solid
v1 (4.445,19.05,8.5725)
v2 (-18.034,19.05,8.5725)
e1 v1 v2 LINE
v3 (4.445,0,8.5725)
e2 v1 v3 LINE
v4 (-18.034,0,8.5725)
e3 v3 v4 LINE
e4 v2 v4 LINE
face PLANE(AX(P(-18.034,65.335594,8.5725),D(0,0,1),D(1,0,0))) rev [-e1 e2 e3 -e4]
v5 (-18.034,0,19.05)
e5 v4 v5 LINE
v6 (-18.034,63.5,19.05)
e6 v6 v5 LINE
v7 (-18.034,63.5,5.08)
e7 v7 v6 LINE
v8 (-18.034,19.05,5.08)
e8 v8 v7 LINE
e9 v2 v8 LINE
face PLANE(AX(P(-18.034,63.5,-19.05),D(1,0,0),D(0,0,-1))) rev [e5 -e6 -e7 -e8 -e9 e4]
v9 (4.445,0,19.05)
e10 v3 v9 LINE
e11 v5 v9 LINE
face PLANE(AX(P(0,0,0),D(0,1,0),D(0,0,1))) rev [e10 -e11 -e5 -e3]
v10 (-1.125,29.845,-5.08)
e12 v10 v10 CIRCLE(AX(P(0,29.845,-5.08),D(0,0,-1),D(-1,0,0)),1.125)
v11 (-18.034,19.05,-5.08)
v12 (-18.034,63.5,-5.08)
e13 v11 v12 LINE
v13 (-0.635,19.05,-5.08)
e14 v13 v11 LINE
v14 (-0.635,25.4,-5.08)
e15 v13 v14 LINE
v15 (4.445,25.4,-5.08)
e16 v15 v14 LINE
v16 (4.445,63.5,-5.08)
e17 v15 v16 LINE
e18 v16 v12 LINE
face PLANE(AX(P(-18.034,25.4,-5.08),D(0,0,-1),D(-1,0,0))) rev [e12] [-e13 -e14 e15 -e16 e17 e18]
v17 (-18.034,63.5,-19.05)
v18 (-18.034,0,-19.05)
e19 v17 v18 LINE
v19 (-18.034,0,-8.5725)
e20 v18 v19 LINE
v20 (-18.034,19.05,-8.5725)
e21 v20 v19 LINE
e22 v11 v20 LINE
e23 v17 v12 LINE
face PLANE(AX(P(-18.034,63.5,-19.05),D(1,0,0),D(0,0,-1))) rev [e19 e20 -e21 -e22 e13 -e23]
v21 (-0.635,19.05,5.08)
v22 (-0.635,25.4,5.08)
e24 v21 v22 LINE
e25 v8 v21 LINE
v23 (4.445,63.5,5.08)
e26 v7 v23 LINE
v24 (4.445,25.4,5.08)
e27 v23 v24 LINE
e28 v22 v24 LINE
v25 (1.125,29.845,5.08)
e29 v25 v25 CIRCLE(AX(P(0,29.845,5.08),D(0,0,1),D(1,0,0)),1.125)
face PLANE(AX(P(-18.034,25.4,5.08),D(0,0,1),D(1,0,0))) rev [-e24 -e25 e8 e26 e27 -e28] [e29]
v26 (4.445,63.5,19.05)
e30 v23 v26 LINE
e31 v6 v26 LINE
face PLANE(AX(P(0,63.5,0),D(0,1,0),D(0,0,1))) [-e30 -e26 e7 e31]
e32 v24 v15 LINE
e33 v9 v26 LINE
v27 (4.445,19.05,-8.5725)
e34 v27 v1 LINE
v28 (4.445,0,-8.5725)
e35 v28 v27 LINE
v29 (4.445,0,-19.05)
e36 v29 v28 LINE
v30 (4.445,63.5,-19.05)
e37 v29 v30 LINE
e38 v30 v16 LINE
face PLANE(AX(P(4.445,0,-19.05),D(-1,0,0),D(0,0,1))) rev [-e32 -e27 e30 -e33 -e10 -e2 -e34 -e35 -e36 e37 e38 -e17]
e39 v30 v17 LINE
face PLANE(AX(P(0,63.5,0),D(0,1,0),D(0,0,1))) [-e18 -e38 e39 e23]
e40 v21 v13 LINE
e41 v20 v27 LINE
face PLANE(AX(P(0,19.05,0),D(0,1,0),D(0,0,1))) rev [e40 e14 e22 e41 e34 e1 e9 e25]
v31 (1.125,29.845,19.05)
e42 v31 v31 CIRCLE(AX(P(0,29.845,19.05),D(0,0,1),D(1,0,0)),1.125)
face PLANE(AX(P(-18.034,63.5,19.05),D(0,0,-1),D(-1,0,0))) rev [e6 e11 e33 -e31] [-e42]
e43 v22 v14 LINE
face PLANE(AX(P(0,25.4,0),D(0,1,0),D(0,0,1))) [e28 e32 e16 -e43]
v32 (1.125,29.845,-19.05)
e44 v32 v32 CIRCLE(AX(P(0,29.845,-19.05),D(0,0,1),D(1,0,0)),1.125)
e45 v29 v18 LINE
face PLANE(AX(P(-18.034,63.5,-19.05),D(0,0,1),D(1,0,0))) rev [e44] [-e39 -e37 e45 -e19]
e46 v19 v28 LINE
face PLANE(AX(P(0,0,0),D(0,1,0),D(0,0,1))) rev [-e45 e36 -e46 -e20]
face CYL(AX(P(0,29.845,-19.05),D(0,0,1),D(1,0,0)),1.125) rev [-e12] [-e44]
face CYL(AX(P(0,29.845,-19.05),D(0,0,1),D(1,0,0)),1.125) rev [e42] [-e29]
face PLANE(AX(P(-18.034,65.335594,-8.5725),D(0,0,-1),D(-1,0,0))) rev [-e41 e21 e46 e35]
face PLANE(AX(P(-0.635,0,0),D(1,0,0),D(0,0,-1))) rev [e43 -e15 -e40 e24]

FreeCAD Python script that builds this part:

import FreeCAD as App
import Part
import Sketcher
Q = App.Units.Quantity

doc = App.newDocument("Part")
body = doc.addObject("PartDesign::Body", "Body")

# Sketch on XZ plane
sketch1 = body.newObject("Sketcher::SketchObject", "Sketch")
sketch1.AttachmentSupport = (doc.getObject("XZ_Plane"), [""])
sketch1.MapMode = "FlatFace"
sketch1.addGeometry([
    Part.LineSegment(App.Vector(-18, -19, 0), App.Vector(-18, 19, 0)),
    Part.LineSegment(App.Vector(-18, 19, 0), App.Vector(18, 19, 0)),
    Part.LineSegment(App.Vector(18, 19, 0), App.Vector(18, -19, 0)),
    Part.LineSegment(App.Vector(18, -19, 0), App.Vector(-18, -19, 0)),
], False)
sketch1.addConstraint([
    Sketcher.Constraint("Coincident", 0, 2, 1, 1),
    Sketcher.Constraint("Coincident", 1, 2, 2, 1),
    Sketcher.Constraint("Coincident", 2, 2, 3, 1),
    Sketcher.Constraint("Coincident", 3, 2, 0, 1),
    Sketcher.Constraint("Vertical", 0),
    Sketcher.Constraint("Horizontal", 1),
    Sketcher.Constraint("Vertical", 2),
    Sketcher.Constraint("Horizontal", 3),
    Sketcher.Constraint("Symmetric", 0, 2, 2, 2, -1, 1),
    Sketcher.Constraint("DistanceY", 0, 1, 0, 2, Q("1.5 in")),
    Sketcher.Constraint("DistanceX", 1, 1, 1, 2, Q("1.42 in")),
])
pad1 = body.newObject("PartDesign::Pad", "Pad")
pad1.Profile = sketch1
pad1.Length = Q("2.5 in")
pad1.Reversed = True

# Sketch on XZ plane
sketch2 = body.newObject("Sketcher::SketchObject", "Sketch001")
sketch2.AttachmentSupport = (doc.getObject("XZ_Plane"), [""])
sketch2.MapMode = "FlatFace"
sketch2.AttachmentOffset = App.Placement(App.Vector(0, 0, -2.5 * 25.4), App.Rotation())
sketch2.addGeometry([
    Part.LineSegment(App.Vector(-18, -5, 0), App.Vector(-18, 5, 0)),
    Part.LineSegment(App.Vector(-18, 5, 0), App.Vector(18, 5, 0)),
    Part.LineSegment(App.Vector(18, 5, 0), App.Vector(18, -5, 0)),
    Part.LineSegment(App.Vector(18, -5, 0), App.Vector(-18, -5, 0)),
], False)
sketch2.addConstraint([
    Sketcher.Constraint("Coincident", 0, 2, 1, 1),
    Sketcher.Constraint("Coincident", 1, 2, 2, 1),
    Sketcher.Constraint("Coincident", 2, 2, 3, 1),
    Sketcher.Constraint("Coincident", 3, 2, 0, 1),
    Sketcher.Constraint("Vertical", 0),
    Sketcher.Constraint("Horizontal", 1),
    Sketcher.Constraint("Vertical", 2),
    Sketcher.Constraint("Horizontal", 3),
    Sketcher.Constraint("Symmetric", 0, 2, 2, 2, -1, 1),
    Sketcher.Constraint("DistanceY", 0, 1, 0, 2, Q("0.4 in")),
    Sketcher.Constraint("DistanceX", 1, 1, 1, 2, Q("1.42 in")),
])
pocket1 = body.newObject("PartDesign::Pocket", "Pocket")
pocket1.Profile = sketch2
pocket1.Length = Q("1.5 in")
pocket1.Reversed = True

# Sketch on XZ plane
sketch3 = body.newObject("Sketcher::SketchObject", "Sketch002")
sketch3.AttachmentSupport = (doc.getObject("XZ_Plane"), [""])
sketch3.MapMode = "FlatFace"
sketch3.addGeometry([
    Part.LineSegment(App.Vector(-18, 9, 0), App.Vector(-18, -9, 0)),
    Part.LineSegment(App.Vector(-18, -9, 0), App.Vector(18, -9, 0)),
    Part.LineSegment(App.Vector(18, -9, 0), App.Vector(18, 9, 0)),
    Part.LineSegment(App.Vector(18, 9, 0), App.Vector(-18, 9, 0)),
], False)
sketch3.addConstraint([
    Sketcher.Constraint("Coincident", 0, 2, 1, 1),
    Sketcher.Constraint("Coincident", 1, 2, 2, 1),
    Sketcher.Constraint("Coincident", 2, 2, 3, 1),
    Sketcher.Constraint("Coincident", 3, 2, 0, 1),
    Sketcher.Constraint("Vertical", 0),
    Sketcher.Constraint("Horizontal", 1),
    Sketcher.Constraint("Vertical", 2),
    Sketcher.Constraint("Horizontal", 3),
    Sketcher.Constraint("Symmetric", 0, 2, 2, 2, -1, 1),
    Sketcher.Constraint("DistanceX", 1, 1, 1, 2, Q("1.42 in")),
    Sketcher.Constraint("DistanceY", 0, 2, 0, 1, Q("0.675 in")),
])
pocket2 = body.newObject("PartDesign::Pocket", "Pocket001")
pocket2.Profile = sketch3
pocket2.Length = Q("0.75 in")

# Sketch on XZ plane
sketch4 = body.newObject("Sketcher::SketchObject", "Sketch003")
sketch4.AttachmentSupport = (doc.getObject("XZ_Plane"), [""])
sketch4.MapMode = "FlatFace"
sketch4.AttachmentOffset = App.Placement(App.Vector(0, 0, -1 * 25.4), App.Rotation())
sketch4.addGeometry([
    Part.LineSegment(App.Vector(-18, -5, 0), App.Vector(-18, 5, 0)),  # 0
    Part.LineSegment(App.Vector(-18, 5, 0), App.Vector(-1, 5, 0)),  # 1
    Part.LineSegment(App.Vector(-1, 5, 0), App.Vector(-1, -5, 0)),  # 2
    Part.LineSegment(App.Vector(-1, -5, 0), App.Vector(-18, -5, 0)),  # 3
    Part.LineSegment(App.Vector(1, -5, 0), App.Vector(1, 5, 0)),  # 4
    Part.LineSegment(App.Vector(1, 5, 0), App.Vector(18, 5, 0)),  # 5
    Part.LineSegment(App.Vector(18, 5, 0), App.Vector(18, -5, 0)),  # 6
    Part.LineSegment(App.Vector(18, -5, 0), App.Vector(1, -5, 0)),  # 7
], False)
sketch4.addConstraint([
    Sketcher.Constraint("Coincident", 0, 2, 1, 1),
    Sketcher.Constraint("Coincident", 1, 2, 2, 1),
    Sketcher.Constraint("Coincident", 2, 2, 3, 1),
    Sketcher.Constraint("Coincident", 3, 2, 0, 1),
    Sketcher.Constraint("Coincident", 4, 2, 5, 1),
    Sketcher.Constraint("Coincident", 5, 2, 6, 1),
    Sketcher.Constraint("Coincident", 6, 2, 7, 1),
    Sketcher.Constraint("Coincident", 7, 2, 4, 1),
    Sketcher.Constraint("Vertical", 0),
    Sketcher.Constraint("Horizontal", 1),
    Sketcher.Constraint("Vertical", 2),
    Sketcher.Constraint("Horizontal", 3),
    Sketcher.Constraint("Vertical", 4),
    Sketcher.Constraint("Horizontal", 5),
    Sketcher.Constraint("Vertical", 6),
    Sketcher.Constraint("Horizontal", 7),
    Sketcher.Constraint("Symmetric", 2, 2, 4, 2, -1, 1),
    Sketcher.Constraint("Symmetric", 0, 2, 6, 2, -1, 1),
    Sketcher.Constraint("Horizontal", 1, 2, 4, 2),
    Sketcher.Constraint("DistanceY", 0, 1, 0, 2, Q("0.4 in")),
    Sketcher.Constraint("DistanceX", 1, 1, 1, 2, Q("0.685 in")),
    Sketcher.Constraint("DistanceX", 0, 2, -1, 1, Q("0.71 in")),
])
pocket3 = body.newObject("PartDesign::Pocket", "Pocket002")
pocket3.Profile = sketch4
pocket3.Type = "ThroughAll"
pocket3.Reversed = True

# Sketch on XY plane
sketch5 = body.newObject("Sketcher::SketchObject", "Sketch004")
sketch5.AttachmentSupport = (doc.getObject("XY_Plane"), [""])
sketch5.MapMode = "FlatFace"
sketch5.AttachmentOffset = App.Placement(App.Vector(0, 0, -0.2 * 25.4), App.Rotation())
sketch5.addGeometry(Part.Circle(App.Vector(0, 29.8, 0), App.Vector(0, 0, 1), 1.1), False)
sketch5.addConstraint([
    Sketcher.Constraint("PointOnObject", 0, 3, -2),
    Sketcher.Constraint("Diameter", 0, 2.25),
    Sketcher.Constraint("DistanceY", -1, 1, 0, 3, Q("1.175 in")),
])
pocket4 = body.newObject("PartDesign::Pocket", "Pocket003")
pocket4.Profile = sketch5
pocket4.Type = "ThroughAll"
pocket4.Midplane = True

# Sketch on XZ plane
sketch6 = body.newObject("Sketcher::SketchObject", "Sketch005")
sketch6.AttachmentSupport = (doc.getObject("XZ_Plane"), [""])
sketch6.MapMode = "FlatFace"
sketch6.AttachmentOffset = App.Placement(App.Vector(0, 0, -2.5 * 25.4), App.Rotation())
sketch6.addGeometry([
    Part.LineSegment(App.Vector(4, -19, 0), App.Vector(4, 19, 0)),
    Part.LineSegment(App.Vector(4, 19, 0), App.Vector(18, 19, 0)),
    Part.LineSegment(App.Vector(18, 19, 0), App.Vector(18, -19, 0)),
    Part.LineSegment(App.Vector(18, -19, 0), App.Vector(4, -19, 0)),
], False)
sketch6.addConstraint([
    Sketcher.Constraint("Coincident", 0, 2, 1, 1),
    Sketcher.Constraint("Coincident", 1, 2, 2, 1),
    Sketcher.Constraint("Coincident", 2, 2, 3, 1),
    Sketcher.Constraint("Coincident", 3, 2, 0, 1),
    Sketcher.Constraint("Vertical", 0),
    Sketcher.Constraint("Horizontal", 1),
    Sketcher.Constraint("Vertical", 2),
    Sketcher.Constraint("Horizontal", 3),
    Sketcher.Constraint("DistanceY", 0, 1, 0, 2, Q("1.5 in")),
    Sketcher.Constraint("DistanceX", 1, 1, 1, 2, Q("0.535 in")),
    Sketcher.Constraint("DistanceY", -1, 1, 0, 2, Q("0.75 in")),
    Sketcher.Constraint("DistanceX", -1, 1, 1, 2, Q("0.71 in")),
])
pocket5 = body.newObject("PartDesign::Pocket", "Pocket004")
pocket5.Profile = sketch6
pocket5.Type = "ThroughAll"
pocket5.Reversed = True

# Sketch on YZ plane
sketch7 = body.newObject("Sketcher::SketchObject", "Sketch006")
sketch7.AttachmentSupport = (doc.getObject("YZ_Plane"), [""])
sketch7.MapMode = "FlatFace"
sketch7.AttachmentOffset = App.Placement(App.Vector(0, 0, 0.025 * 25.4), App.Rotation())
sketch7.addGeometry([
    Part.LineSegment(App.Vector(25, 5, 0), App.Vector(19, 5, 0)),
    Part.LineSegment(App.Vector(19, 5, 0), App.Vector(19, -5, 0)),
    Part.LineSegment(App.Vector(19, -5, 0), App.Vector(25, -5, 0)),
    Part.LineSegment(App.Vector(25, -5, 0), App.Vector(25, 5, 0)),
], False)
sketch7.addConstraint([
    Sketcher.Constraint("Coincident", 0, 2, 1, 1),
    Sketcher.Constraint("Coincident", 1, 2, 2, 1),
    Sketcher.Constraint("Coincident", 2, 2, 3, 1),
    Sketcher.Constraint("Coincident", 3, 2, 0, 1),
    Sketcher.Constraint("Horizontal", 0),
    Sketcher.Constraint("Vertical", 1),
    Sketcher.Constraint("Horizontal", 2),
    Sketcher.Constraint("Vertical", 3),
    Sketcher.Constraint("DistanceY", 1, 2, 1, 1, Q("0.4 in")),
    Sketcher.Constraint("DistanceX", -1, 1, 2, 2, Q("1 in")),
    Sketcher.Constraint("DistanceX", 0, 2, 0, 1, Q("0.25 in")),
    Sketcher.Constraint("DistanceY", -1, 1, 0, 2, Q("0.2 in")),
])
pad2 = body.newObject("PartDesign::Pad", "Pad001")
pad2.Profile = sketch7
pad2.Length = Q("0.15 in")

doc.recompute()
